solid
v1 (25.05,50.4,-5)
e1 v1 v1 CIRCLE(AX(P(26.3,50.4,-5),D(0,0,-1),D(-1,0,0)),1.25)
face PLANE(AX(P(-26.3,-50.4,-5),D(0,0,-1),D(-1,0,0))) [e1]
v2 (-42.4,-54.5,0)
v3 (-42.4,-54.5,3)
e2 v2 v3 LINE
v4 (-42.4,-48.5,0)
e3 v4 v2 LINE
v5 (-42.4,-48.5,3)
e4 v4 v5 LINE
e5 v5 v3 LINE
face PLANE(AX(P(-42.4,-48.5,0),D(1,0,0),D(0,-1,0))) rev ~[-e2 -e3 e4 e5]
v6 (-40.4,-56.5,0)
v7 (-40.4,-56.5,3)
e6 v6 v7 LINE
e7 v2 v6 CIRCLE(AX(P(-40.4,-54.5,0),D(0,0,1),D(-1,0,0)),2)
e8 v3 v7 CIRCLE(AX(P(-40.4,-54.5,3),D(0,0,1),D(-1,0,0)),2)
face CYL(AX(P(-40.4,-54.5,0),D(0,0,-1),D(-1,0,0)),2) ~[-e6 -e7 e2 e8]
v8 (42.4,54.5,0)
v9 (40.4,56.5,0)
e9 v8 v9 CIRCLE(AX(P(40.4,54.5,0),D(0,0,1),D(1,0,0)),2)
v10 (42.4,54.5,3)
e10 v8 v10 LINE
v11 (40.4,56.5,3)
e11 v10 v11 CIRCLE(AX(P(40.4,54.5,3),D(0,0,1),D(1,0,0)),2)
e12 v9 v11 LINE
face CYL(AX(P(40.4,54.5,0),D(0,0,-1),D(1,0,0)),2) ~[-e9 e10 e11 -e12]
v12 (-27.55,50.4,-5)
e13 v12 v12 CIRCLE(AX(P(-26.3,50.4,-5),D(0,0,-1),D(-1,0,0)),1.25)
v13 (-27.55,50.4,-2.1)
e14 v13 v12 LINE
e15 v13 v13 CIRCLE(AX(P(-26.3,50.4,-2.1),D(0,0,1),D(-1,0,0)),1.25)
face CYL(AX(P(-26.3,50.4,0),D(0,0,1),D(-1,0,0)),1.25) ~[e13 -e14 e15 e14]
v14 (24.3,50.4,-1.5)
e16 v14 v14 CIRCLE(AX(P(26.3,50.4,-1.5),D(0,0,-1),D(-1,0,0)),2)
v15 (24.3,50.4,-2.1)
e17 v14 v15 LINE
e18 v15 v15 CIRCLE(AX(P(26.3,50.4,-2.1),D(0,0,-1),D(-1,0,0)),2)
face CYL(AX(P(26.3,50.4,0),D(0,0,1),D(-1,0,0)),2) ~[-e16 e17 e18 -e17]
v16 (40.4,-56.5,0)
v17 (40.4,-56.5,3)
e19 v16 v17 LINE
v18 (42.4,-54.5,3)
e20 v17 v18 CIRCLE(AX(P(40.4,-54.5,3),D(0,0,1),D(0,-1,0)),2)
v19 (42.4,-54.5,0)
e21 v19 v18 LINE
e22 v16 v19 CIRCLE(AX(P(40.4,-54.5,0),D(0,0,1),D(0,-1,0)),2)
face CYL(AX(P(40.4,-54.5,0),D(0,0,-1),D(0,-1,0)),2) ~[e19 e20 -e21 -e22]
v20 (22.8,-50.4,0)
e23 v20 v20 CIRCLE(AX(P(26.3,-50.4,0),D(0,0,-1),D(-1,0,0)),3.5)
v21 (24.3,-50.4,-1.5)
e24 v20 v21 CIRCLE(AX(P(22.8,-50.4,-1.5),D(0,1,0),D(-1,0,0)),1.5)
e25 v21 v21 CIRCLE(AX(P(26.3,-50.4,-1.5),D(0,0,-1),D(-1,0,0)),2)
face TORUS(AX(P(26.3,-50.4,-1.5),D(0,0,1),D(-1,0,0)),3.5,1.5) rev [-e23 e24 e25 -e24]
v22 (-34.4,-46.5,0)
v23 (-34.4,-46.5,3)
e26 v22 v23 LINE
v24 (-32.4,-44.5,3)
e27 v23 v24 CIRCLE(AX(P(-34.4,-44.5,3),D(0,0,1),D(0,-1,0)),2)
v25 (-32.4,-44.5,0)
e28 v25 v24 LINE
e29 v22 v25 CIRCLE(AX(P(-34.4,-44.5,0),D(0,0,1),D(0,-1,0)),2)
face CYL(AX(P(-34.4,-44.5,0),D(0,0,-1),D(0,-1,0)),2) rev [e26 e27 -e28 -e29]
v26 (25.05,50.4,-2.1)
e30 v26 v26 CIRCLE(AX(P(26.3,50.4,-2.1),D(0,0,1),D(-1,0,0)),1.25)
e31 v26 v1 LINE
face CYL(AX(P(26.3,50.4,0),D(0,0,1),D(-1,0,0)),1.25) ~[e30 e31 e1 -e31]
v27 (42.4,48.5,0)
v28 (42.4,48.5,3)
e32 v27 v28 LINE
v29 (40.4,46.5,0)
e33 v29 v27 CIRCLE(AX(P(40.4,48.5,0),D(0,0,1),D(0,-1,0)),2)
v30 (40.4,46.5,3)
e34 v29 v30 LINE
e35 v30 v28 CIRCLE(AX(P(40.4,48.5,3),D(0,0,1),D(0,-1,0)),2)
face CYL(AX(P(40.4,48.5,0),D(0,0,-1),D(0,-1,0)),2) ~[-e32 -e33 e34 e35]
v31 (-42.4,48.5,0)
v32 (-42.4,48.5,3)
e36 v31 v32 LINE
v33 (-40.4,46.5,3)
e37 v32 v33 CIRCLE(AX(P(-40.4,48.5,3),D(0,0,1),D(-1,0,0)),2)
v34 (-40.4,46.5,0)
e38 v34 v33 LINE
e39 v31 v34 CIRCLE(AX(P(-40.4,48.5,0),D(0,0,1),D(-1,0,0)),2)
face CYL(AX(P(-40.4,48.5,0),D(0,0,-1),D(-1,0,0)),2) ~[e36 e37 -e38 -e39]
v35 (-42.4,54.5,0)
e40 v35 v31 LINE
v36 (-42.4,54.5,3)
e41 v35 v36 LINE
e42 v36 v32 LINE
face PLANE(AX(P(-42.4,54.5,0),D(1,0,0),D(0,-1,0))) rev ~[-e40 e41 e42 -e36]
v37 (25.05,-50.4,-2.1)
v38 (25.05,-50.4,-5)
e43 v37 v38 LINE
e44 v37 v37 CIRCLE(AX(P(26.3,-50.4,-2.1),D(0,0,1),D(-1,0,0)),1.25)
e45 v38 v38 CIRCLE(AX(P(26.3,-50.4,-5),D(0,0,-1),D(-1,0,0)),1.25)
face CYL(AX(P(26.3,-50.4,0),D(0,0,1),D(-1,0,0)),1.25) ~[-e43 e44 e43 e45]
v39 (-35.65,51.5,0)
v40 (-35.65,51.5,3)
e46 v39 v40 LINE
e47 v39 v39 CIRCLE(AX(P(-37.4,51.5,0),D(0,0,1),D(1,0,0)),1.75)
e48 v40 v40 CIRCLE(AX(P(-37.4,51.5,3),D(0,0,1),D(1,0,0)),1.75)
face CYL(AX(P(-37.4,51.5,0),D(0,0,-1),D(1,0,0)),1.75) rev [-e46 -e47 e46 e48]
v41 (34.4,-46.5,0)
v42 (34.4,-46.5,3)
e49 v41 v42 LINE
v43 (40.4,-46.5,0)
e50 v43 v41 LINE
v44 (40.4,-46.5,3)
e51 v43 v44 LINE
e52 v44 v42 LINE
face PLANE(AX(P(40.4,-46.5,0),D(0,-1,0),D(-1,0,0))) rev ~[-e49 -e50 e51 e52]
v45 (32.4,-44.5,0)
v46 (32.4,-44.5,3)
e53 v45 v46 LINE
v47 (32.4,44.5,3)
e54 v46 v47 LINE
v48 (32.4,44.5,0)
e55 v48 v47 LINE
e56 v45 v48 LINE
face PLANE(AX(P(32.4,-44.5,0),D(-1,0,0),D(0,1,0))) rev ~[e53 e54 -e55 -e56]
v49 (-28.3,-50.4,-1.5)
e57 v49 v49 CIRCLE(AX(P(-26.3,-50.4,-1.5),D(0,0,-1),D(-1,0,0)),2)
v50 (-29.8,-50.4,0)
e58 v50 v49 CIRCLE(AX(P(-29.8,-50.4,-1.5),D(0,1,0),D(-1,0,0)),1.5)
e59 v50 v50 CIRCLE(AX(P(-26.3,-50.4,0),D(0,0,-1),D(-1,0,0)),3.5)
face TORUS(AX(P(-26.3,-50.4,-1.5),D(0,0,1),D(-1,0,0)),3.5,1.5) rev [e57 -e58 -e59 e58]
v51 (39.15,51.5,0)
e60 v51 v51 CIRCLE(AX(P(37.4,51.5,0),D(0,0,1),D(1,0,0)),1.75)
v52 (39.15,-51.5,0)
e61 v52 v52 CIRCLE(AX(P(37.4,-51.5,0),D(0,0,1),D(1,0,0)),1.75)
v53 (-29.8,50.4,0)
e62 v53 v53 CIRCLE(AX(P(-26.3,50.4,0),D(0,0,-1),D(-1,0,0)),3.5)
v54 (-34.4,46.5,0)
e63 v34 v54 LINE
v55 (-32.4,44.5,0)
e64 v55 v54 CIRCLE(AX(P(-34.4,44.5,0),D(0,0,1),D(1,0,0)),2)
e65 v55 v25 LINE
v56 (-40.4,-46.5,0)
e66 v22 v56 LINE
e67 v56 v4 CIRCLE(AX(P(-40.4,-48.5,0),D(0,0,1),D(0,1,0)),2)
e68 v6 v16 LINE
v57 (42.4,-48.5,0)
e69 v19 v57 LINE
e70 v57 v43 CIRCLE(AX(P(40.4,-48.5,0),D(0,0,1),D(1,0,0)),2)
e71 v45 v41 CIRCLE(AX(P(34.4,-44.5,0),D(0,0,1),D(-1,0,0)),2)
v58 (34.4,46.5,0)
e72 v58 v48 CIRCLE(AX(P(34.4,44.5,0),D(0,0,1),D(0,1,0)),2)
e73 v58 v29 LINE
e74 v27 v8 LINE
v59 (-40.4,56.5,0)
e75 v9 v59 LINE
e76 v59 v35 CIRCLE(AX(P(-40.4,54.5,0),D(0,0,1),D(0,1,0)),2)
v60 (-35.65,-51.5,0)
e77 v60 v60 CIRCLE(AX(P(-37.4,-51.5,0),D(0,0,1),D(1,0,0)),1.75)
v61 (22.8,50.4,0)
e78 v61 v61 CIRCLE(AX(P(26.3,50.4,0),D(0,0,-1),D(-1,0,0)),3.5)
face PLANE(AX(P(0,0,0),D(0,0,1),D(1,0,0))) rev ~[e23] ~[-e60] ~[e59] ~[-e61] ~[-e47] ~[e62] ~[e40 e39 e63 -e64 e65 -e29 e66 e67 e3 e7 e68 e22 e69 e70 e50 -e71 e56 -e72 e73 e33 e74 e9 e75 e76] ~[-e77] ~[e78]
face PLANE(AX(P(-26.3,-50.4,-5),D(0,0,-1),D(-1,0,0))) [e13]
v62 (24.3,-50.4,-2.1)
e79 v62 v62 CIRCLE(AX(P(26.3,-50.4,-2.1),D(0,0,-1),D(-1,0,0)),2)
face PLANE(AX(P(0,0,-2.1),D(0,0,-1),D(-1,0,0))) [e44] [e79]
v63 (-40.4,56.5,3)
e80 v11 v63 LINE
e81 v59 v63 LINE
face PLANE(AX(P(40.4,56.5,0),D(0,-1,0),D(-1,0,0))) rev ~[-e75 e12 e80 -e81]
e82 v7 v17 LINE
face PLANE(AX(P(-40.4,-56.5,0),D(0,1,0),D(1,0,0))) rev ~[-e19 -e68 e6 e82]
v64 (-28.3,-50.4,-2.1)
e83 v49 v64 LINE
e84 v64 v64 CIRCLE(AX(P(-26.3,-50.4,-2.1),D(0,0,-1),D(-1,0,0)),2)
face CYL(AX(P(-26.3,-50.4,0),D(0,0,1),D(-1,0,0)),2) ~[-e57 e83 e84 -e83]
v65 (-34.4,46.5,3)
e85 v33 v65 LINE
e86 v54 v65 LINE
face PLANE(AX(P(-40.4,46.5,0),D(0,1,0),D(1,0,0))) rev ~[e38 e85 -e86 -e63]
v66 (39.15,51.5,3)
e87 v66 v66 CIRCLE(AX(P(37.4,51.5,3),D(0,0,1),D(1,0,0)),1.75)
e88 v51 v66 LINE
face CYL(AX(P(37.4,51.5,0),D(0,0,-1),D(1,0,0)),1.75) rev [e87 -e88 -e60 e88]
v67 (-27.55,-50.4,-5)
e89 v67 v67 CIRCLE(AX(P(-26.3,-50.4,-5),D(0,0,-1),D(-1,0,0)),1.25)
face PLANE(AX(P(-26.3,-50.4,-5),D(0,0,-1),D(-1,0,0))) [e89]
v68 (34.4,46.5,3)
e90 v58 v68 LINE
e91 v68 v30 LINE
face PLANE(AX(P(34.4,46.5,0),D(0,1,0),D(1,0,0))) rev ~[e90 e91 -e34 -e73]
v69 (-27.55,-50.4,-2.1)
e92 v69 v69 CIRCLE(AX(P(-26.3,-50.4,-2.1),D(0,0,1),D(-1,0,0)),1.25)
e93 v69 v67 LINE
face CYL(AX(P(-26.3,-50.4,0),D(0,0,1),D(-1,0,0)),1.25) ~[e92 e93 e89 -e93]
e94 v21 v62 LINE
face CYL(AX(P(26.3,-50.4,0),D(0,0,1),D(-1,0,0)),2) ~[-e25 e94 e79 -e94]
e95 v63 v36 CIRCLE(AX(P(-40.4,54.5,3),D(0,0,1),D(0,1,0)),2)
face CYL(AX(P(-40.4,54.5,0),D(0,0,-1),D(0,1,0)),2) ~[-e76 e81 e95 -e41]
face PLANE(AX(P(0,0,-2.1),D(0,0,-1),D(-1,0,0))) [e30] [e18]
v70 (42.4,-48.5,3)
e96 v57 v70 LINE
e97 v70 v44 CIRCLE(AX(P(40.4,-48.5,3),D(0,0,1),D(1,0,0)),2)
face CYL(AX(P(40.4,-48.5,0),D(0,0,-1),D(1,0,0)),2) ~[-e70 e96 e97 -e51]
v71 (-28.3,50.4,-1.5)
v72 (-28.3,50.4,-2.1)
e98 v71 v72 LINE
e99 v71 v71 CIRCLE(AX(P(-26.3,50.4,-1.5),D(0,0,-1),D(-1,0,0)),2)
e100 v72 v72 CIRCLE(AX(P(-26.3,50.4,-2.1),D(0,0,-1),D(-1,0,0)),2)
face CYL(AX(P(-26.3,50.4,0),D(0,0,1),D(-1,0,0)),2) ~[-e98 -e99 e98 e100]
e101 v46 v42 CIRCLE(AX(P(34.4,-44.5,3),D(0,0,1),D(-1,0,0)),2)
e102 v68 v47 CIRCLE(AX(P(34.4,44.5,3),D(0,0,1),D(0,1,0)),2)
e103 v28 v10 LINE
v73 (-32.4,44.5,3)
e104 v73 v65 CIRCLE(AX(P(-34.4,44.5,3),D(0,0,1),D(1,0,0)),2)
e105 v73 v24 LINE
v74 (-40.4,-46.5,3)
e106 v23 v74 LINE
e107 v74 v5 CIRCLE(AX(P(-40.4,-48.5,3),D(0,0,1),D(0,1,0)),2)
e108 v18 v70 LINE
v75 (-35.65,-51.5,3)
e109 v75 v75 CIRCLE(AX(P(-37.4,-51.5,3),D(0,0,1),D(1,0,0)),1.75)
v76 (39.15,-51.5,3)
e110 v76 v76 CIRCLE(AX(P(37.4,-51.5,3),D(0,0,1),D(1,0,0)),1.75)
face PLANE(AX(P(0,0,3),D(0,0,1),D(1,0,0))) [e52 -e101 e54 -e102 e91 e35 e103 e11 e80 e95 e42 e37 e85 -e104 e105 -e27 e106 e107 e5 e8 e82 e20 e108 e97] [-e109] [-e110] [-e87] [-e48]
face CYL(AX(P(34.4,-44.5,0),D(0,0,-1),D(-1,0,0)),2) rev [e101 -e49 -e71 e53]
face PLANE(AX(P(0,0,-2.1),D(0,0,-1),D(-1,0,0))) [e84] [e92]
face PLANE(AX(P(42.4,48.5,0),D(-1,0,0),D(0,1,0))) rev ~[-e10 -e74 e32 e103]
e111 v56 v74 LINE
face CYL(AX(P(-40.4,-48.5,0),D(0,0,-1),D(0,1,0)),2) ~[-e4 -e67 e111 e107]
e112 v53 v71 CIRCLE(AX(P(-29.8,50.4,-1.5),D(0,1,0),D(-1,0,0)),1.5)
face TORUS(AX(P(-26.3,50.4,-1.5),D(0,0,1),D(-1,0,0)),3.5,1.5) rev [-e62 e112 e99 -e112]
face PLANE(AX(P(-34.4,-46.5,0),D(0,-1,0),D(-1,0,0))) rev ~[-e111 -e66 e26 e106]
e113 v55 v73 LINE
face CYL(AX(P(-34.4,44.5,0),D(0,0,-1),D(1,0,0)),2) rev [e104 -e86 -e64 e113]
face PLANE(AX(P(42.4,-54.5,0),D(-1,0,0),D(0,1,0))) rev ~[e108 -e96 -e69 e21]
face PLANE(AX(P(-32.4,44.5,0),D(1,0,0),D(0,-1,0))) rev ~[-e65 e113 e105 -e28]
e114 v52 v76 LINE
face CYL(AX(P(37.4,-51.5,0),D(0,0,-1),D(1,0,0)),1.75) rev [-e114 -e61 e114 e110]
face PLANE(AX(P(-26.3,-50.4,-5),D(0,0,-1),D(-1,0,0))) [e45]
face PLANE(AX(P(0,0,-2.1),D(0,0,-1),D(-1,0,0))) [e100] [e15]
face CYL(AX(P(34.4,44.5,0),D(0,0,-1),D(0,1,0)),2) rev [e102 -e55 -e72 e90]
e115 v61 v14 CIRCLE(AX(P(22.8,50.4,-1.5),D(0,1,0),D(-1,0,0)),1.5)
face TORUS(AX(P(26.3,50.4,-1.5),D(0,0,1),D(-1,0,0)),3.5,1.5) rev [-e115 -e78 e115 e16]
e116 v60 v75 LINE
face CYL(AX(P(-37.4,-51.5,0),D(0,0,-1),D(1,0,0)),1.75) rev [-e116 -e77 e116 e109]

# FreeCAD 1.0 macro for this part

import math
import FreeCAD as App
import Part
import Sketcher
from FreeCAD import Vector
Q = App.Units.Quantity


def edges_at(feature, points):
    """Names of the edges that pass closest to the given points."""
    edges = feature.Shape.Edges
    near = lambda p: min(range(len(edges)), key=lambda i: edges[i].distToShape(Part.Vertex(*p))[0])
    return sorted({f"Edge{near(p) + 1}" for p in points})

doc = App.newDocument("Part")
body = doc.addObject("PartDesign::Body", "Body")

# Sketch on XY plane
sketch1 = body.newObject("Sketcher::SketchObject", "Sketch")
sketch1.AttachmentSupport = (doc.getObject("XY_Plane"), [""])
sketch1.MapMode = "FlatFace"
sketch1.addGeometry([
    Part.ArcOfCircle(Part.Circle(Vector(-34.4, 44.5, 0), Vector(0, 0, 1), 2), math.radians(0), math.radians(90)),  # 0
    Part.LineSegment(Vector(-32.4, 44.5, 0), Vector(-32.4, -44.5, 0)),  # 1
    Part.ArcOfCircle(Part.Circle(Vector(-34.4, -44.5, 0), Vector(0, 0, 1), 2), math.radians(-90), math.radians(0)),  # 2
    Part.LineSegment(Vector(-34.4, -46.5, 0), Vector(-40.4, -46.5, 0)),  # 3
    Part.ArcOfCircle(Part.Circle(Vector(-40.4, -48.5, 0), Vector(0, 0, 1), 2), math.radians(90), math.radians(180)),  # 4
    Part.LineSegment(Vector(-42.4, -48.5, 0), Vector(-42.4, -54.5, 0)),  # 5
    Part.ArcOfCircle(Part.Circle(Vector(-40.4, -54.5, 0), Vector(0, 0, 1), 2), math.radians(180), math.radians(270)),  # 6
    Part.LineSegment(Vector(-40.4, -56.5, 0), Vector(40.4, -56.5, 0)),  # 7
    Part.ArcOfCircle(Part.Circle(Vector(40.4, -54.5, 0), Vector(0, 0, 1), 2), math.radians(-90), math.radians(0)),  # 8
    Part.LineSegment(Vector(42.4, -54.5, 0), Vector(42.4, -48.5, 0)),  # 9
    Part.ArcOfCircle(Part.Circle(Vector(40.4, -48.5, 0), Vector(0, 0, 1), 2), math.radians(0), math.radians(90)),  # 10
    Part.LineSegment(Vector(40.4, -46.5, 0), Vector(34.4, -46.5, 0)),  # 11
    Part.ArcOfCircle(Part.Circle(Vector(34.4, -44.5, 0), Vector(0, 0, 1), 2), math.radians(180), math.radians(270)),  # 12
    Part.LineSegment(Vector(32.4, -44.5, 0), Vector(32.4, 44.5, 0)),  # 13
    Part.ArcOfCircle(Part.Circle(Vector(34.4, 44.5, 0), Vector(0, 0, 1), 2), math.radians(90), math.radians(180)),  # 14
    Part.LineSegment(Vector(34.4, 46.5, 0), Vector(40.4, 46.5, 0)),  # 15
    Part.ArcOfCircle(Part.Circle(Vector(40.4, 48.5, 0), Vector(0, 0, 1), 2), math.radians(-90), math.radians(0)),  # 16
    Part.LineSegment(Vector(42.4, 48.5, 0), Vector(42.4, 54.5, 0)),  # 17
    Part.ArcOfCircle(Part.Circle(Vector(40.4, 54.5, 0), Vector(0, 0, 1), 2), math.radians(0), math.radians(90)),  # 18
    Part.LineSegment(Vector(40.4, 56.5, 0), Vector(-40.4, 56.5, 0)),  # 19
    Part.ArcOfCircle(Part.Circle(Vector(-40.4, 54.5, 0), Vector(0, 0, 1), 2), math.radians(90), math.radians(180)),  # 20
    Part.LineSegment(Vector(-42.4, 54.5, 0), Vector(-42.4, 48.5, 0)),  # 21
    Part.ArcOfCircle(Part.Circle(Vector(-40.4, 48.5, 0), Vector(0, 0, 1), 2), math.radians(180), math.radians(270)),  # 22
    Part.LineSegment(Vector(-40.4, 46.5, 0), Vector(-34.4, 46.5, 0)),  # 23
    Part.Circle(Vector(-37.4, -51.5, 0), Vector(0, 0, 1), 1.8),  # 24
    Part.Circle(Vector(37.4, -51.5, 0), Vector(0, 0, 1), 1.8),  # 25
    Part.Circle(Vector(-37.4, 51.5, 0), Vector(0, 0, 1), 1.8),  # 26
    Part.Circle(Vector(37.4, 51.5, 0), Vector(0, 0, 1), 1.8),  # 27
], False)
sketch1.addConstraint([
    Sketcher.Constraint("Tangent", 0, 1, 1, 1),
    Sketcher.Constraint("Tangent", 1, 2, 2, 2),
    Sketcher.Constraint("Tangent", 2, 1, 3, 1),
    Sketcher.Constraint("Tangent", 3, 2, 4, 1),
    Sketcher.Constraint("Tangent", 4, 2, 5, 1),
    Sketcher.Constraint("Tangent", 5, 2, 6, 1),
    Sketcher.Constraint("Tangent", 6, 2, 7, 1),
    Sketcher.Constraint("Tangent", 7, 2, 8, 1),
    Sketcher.Constraint("Tangent", 8, 2, 9, 1),
    Sketcher.Constraint("Tangent", 9, 2, 10, 1),
    Sketcher.Constraint("Tangent", 10, 2, 11, 1),
    Sketcher.Constraint("Tangent", 11, 2, 12, 2),
    Sketcher.Constraint("Tangent", 12, 1, 13, 1),
    Sketcher.Constraint("Tangent", 13, 2, 14, 2),
    Sketcher.Constraint("Tangent", 14, 1, 15, 1),
    Sketcher.Constraint("Tangent", 15, 2, 16, 1),
    Sketcher.Constraint("Tangent", 16, 2, 17, 1),
    Sketcher.Constraint("Tangent", 17, 2, 18, 1),
    Sketcher.Constraint("Tangent", 18, 2, 19, 1),
    Sketcher.Constraint("Tangent", 19, 2, 20, 1),
    Sketcher.Constraint("Tangent", 20, 2, 21, 1),
    Sketcher.Constraint("Tangent", 21, 2, 22, 1),
    Sketcher.Constraint("Tangent", 22, 2, 23, 1),
    Sketcher.Constraint("Tangent", 23, 2, 0, 2),
    Sketcher.Constraint("Vertical", 1),
    Sketcher.Constraint("Horizontal", 3),
    Sketcher.Constraint("Vertical", 5),
    Sketcher.Constraint("Horizontal", 7),
    Sketcher.Constraint("Vertical", 9),
    Sketcher.Constraint("Horizontal", 11),
    Sketcher.Constraint("Vertical", 13),
    Sketcher.Constraint("Horizontal", 15),
    Sketcher.Constraint("Vertical", 17),
    Sketcher.Constraint("Horizontal", 19),
    Sketcher.Constraint("Vertical", 21),
    Sketcher.Constraint("Horizontal", 23),
    Sketcher.Constraint("Equal", 0, 2),
    Sketcher.Constraint("Equal", 2, 4),
    Sketcher.Constraint("Equal", 4, 6),
    Sketcher.Constraint("Equal", 6, 8),
    Sketcher.Constraint("Equal", 8, 10),
    Sketcher.Constraint("Equal", 10, 12),
    Sketcher.Constraint("Equal", 12, 14),
    Sketcher.Constraint("Equal", 14, 16),
    Sketcher.Constraint("Equal", 16, 18),
    Sketcher.Constraint("Equal", 18, 20),
    Sketcher.Constraint("Equal", 20, 22),
    Sketcher.Constraint("Equal", 24, 25),
    Sketcher.Constraint("Equal", 25, 26),
    Sketcher.Constraint("Equal", 26, 27),
    Sketcher.Constraint("Symmetric", 0, 3, 12, 3, -1, 1),
    Sketcher.Constraint("Symmetric", 4, 3, 16, 3, -1, 1),
    Sketcher.Constraint("Symmetric", 8, 3, 20, 3, -1, 1),
    Sketcher.Constraint("Symmetric", 25, 3, 26, 3, -1, 1),
    Sketcher.Constraint("Symmetric", 24, 3, 27, 3, -1, 1),
    Sketcher.Constraint("Symmetric", 4, 3, 10, 3, -2),
    Sketcher.Constraint("Symmetric", 24, 3, 25, 3, -2),
    Sketcher.Constraint("Equal", 23, 5),
    Sketcher.Constraint("Radius", 0, Q("2 mm")),
    Sketcher.Constraint("Diameter", 24, Q("3.5 mm")),
    Sketcher.Constraint("DistanceX", 3, 2, 3, 1, Q("6 mm")),
    Sketcher.Constraint("DistanceY", 1, 2, 1, 1, Q("89 mm")),
    Sketcher.Constraint("DistanceX", 7, 1, 7, 2, Q("80.8 mm")),
    Sketcher.Constraint("DistanceX", 4, 3, 24, 3, Q("3 mm")),
    Sketcher.Constraint("DistanceY", 24, 3, 4, 3, Q("3 mm")),
])
pad1 = body.newObject("PartDesign::Pad", "Pad")
pad1.Profile = sketch1
pad1.Length = 3

# Sketch on XY plane
sketch2 = body.newObject("Sketcher::SketchObject", "Sketch001")
sketch2.AttachmentSupport = (doc.getObject("XY_Plane"), [""])
sketch2.MapMode = "FlatFace"
sketch2.addGeometry([
    Part.Circle(Vector(-26.3, -50.4, 0), Vector(0, 0, 1), 2),
    Part.Circle(Vector(26.3, -50.4, 0), Vector(0, 0, 1), 2),
    Part.Circle(Vector(26.3, 50.4, 0), Vector(0, 0, 1), 2),
    Part.Circle(Vector(-26.3, 50.4, 0), Vector(0, 0, 1), 2),
], False)
sketch2.addConstraint([
    Sketcher.Constraint("Equal", 0, 1),
    Sketcher.Constraint("Equal", 1, 2),
    Sketcher.Constraint("Equal", 2, 3),
    Sketcher.Constraint("Symmetric", 0, 3, 2, 3, -1, 1),
    Sketcher.Constraint("Symmetric", 1, 3, 3, 3, -1, 1),
    Sketcher.Constraint("Symmetric", 0, 3, 1, 3, -2),
    Sketcher.Constraint("Diameter", 0, Q("4 mm")),
    Sketcher.Constraint("DistanceX", 0, 3, -1, 1, Q("26.3 mm")),
    Sketcher.Constraint("DistanceY", 0, 3, -1, 1, Q("50.4 mm")),
])
pad2 = body.newObject("PartDesign::Pad", "Pad001")
pad2.Profile = sketch2
pad2.Length = 2.1
pad2.Reversed = True
doc.recompute()

fillet = body.newObject("PartDesign::Fillet", "Fillet")
fillet.Base = (pad2, edges_at(pad2, [
    (28.3, -50.4, 0),
    (-24.3, -50.4, 0),
    (-24.3, 50.4, 0),
    (28.3, 50.4, 0),
]))
fillet.Radius = 1.5

# Sketch on XY plane
sketch3 = body.newObject("Sketcher::SketchObject", "Sketch002")
sketch3.AttachmentSupport = (doc.getObject("XY_Plane"), [""])
sketch3.MapMode = "FlatFace"
sketch3.addGeometry([
    Part.Circle(Vector(-26.3, -50.4, 0), Vector(0, 0, 1), 1.2),
    Part.Circle(Vector(26.3, -50.4, 0), Vector(0, 0, 1), 1.2),
    Part.Circle(Vector(26.3, 50.4, 0), Vector(0, 0, 1), 1.2),
    Part.Circle(Vector(-26.3, 50.4, 0), Vector(0, 0, 1), 1.2),
], False)
sketch3.addConstraint([
    Sketcher.Constraint("Equal", 0, 1),
    Sketcher.Constraint("Equal", 1, 2),
    Sketcher.Constraint("Equal", 2, 3),
    Sketcher.Constraint("Symmetric", 0, 3, 2, 3, -1, 1),
    Sketcher.Constraint("Symmetric", 1, 3, 3, 3, -1, 1),
    Sketcher.Constraint("Symmetric", 0, 3, 1, 3, -2),
    Sketcher.Constraint("Diameter", 0, Q("2.5 mm")),
    Sketcher.Constraint("DistanceX", 0, 3, -1, 1, Q("26.3 mm")),
    Sketcher.Constraint("DistanceY", 0, 3, -1, 1, Q("50.4 mm")),
])
pad3 = body.newObject("PartDesign::Pad", "Pad002")
pad3.Profile = sketch3
pad3.Length = 5
pad3.Reversed = True

doc.recompute()
